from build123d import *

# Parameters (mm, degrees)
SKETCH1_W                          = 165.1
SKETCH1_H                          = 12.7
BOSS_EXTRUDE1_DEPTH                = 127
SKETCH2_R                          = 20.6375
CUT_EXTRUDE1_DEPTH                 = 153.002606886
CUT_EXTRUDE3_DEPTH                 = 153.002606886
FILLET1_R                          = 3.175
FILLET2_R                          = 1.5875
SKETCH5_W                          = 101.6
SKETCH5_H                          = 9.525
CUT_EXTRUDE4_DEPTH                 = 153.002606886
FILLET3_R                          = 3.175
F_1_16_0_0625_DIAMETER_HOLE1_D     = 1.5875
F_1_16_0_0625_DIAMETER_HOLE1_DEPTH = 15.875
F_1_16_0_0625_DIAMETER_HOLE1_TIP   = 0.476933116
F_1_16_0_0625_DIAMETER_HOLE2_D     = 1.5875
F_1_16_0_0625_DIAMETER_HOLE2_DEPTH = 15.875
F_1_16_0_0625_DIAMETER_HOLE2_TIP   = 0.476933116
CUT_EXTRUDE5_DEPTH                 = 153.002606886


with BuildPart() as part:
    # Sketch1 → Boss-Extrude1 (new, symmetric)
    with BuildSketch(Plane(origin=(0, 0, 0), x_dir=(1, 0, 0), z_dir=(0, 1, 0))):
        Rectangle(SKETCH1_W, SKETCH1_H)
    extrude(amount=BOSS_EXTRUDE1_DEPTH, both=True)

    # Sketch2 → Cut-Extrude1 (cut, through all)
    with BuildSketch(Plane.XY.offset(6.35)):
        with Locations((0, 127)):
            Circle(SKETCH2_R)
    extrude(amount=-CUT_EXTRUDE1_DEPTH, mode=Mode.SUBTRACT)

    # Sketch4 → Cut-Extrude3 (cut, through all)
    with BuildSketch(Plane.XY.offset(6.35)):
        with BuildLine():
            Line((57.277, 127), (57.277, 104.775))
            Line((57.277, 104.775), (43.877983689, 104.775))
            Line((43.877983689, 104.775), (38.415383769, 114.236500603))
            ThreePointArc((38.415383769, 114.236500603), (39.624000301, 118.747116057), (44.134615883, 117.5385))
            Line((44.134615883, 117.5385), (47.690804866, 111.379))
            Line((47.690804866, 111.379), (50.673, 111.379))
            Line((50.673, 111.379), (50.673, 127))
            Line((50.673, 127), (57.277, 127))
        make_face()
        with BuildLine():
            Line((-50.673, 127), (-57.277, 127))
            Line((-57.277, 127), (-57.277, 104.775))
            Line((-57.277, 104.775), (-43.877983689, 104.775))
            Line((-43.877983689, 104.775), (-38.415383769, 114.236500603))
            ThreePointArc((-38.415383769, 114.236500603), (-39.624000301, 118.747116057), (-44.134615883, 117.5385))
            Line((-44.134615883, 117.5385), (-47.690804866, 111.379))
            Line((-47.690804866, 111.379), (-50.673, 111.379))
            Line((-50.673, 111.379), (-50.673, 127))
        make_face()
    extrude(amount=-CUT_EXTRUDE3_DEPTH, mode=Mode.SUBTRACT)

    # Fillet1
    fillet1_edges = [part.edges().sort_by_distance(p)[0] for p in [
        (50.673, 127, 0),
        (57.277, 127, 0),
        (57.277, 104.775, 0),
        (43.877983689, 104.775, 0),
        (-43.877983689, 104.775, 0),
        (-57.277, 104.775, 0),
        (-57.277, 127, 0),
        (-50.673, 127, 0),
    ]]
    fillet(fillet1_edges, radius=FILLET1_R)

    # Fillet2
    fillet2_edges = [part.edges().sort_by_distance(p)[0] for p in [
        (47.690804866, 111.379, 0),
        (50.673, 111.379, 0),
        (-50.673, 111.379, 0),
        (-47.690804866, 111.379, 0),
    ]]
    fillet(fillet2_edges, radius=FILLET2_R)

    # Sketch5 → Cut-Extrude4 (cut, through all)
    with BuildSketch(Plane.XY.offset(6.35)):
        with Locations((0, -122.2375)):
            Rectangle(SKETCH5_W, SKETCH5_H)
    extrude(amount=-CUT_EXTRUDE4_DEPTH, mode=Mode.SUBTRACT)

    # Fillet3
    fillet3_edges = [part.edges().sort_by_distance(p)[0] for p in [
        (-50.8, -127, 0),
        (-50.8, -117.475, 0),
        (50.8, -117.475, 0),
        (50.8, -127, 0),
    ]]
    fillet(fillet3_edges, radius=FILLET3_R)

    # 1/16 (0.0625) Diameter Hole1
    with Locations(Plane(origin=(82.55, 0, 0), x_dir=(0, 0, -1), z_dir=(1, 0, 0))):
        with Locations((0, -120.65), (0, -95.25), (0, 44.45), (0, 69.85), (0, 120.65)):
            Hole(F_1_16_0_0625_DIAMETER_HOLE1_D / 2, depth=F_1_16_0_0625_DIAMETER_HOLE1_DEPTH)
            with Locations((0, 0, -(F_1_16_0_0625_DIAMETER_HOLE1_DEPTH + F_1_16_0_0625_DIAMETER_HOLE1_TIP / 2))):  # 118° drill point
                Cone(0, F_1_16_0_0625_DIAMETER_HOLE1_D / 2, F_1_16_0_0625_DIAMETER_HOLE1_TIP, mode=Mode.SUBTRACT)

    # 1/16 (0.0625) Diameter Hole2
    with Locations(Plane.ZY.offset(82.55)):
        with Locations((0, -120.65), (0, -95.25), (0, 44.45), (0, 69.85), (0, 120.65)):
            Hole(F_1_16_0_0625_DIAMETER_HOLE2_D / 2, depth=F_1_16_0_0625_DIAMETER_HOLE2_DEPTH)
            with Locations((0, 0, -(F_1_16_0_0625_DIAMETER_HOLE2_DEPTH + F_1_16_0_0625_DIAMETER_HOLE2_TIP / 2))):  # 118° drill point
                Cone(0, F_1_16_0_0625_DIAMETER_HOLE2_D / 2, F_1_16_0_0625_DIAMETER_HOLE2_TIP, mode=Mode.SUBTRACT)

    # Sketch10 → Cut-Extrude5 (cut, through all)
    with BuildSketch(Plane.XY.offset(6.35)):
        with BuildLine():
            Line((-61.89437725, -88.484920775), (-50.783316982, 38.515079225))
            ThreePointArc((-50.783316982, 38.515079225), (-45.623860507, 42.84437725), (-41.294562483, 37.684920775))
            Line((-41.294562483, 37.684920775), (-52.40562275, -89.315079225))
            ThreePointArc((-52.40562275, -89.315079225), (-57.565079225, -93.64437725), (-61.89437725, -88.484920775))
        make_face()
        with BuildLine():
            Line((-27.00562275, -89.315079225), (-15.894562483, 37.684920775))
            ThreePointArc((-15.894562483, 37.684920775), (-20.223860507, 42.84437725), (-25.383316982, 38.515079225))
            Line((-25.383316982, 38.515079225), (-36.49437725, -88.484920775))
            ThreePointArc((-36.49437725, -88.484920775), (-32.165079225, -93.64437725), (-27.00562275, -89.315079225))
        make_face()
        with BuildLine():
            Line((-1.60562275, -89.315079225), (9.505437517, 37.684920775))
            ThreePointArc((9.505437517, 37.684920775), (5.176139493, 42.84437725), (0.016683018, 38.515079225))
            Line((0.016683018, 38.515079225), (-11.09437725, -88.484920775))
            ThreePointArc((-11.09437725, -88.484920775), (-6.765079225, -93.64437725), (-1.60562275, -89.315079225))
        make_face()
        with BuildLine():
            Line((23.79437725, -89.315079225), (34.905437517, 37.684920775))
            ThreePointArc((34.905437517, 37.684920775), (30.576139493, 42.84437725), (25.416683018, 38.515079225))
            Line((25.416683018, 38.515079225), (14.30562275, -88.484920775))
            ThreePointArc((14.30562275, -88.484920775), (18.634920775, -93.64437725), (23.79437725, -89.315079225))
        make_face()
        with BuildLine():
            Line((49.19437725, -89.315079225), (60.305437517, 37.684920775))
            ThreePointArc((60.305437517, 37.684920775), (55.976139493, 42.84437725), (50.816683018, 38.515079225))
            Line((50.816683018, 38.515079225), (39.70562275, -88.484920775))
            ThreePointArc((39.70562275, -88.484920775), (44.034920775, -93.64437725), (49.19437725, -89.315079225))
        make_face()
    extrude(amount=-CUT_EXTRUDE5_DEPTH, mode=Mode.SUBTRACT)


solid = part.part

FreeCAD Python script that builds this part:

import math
import FreeCAD as App
import Part
import Sketcher
from FreeCAD import Vector
Q = App.Units.Quantity


def edges_at(feature, points):
    """Names of the edges that pass closest to the given points."""
    edges = feature.Shape.Edges
    near = lambda p: min(range(len(edges)), key=lambda i: edges[i].distToShape(Part.Vertex(*p))[0])
    return sorted({f"Edge{near(p) + 1}" for p in points})


def add_polygon(sketch, points):
    """Adds a closed chain of lines whose ends are joined by coincident constraints."""
    first, n = sketch.GeometryCount, len(points)
    for a, b in zip(points, points[1:] + points[:1]):
        sketch.addGeometry(Part.LineSegment(App.Vector(*a, 0), App.Vector(*b, 0)), False)
    for i in range(n):
        sketch.addConstraint(Sketcher.Constraint("Coincident", first + i, 2, first + (i + 1) % n, 1))

doc = App.newDocument("Part")
body = doc.addObject("PartDesign::Body", "Body")

# Sketch on XZ plane
sketch1 = doc.addObject("Sketcher::SketchObject", "Sketch")
body.addObject(sketch1)
sketch1.AttachmentSupport = (doc.XZ_Plane, [""])
sketch1.MapMode = "FlatFace"
add_polygon(sketch1, [(-83, -6), (-83, 6), (83, 6), (83, -6)])  # lines 0-3
sketch1.addConstraint(Sketcher.Constraint("Vertical", 0))
sketch1.addConstraint(Sketcher.Constraint("Horizontal", 1))
sketch1.addConstraint(Sketcher.Constraint("Vertical", 2))
sketch1.addConstraint(Sketcher.Constraint("Horizontal", 3))
sketch1.addConstraint(Sketcher.Constraint("Symmetric", 0, 2, 2, 2, -1, 1))
sketch1.addConstraint(Sketcher.Constraint("DistanceX", 1, 1, 1, 2, Q("6.5 in")))
sketch1.addConstraint(Sketcher.Constraint("DistanceY", 0, 1, 0, 2, Q("0.5 in")))
pad1 = doc.addObject("PartDesign::Pad", "Pad")
body.addObject(pad1)
pad1.Profile = sketch1
pad1.Length = Q("10 in")
pad1.Midplane = True

# Sketch on XY plane
sketch2 = doc.addObject("Sketcher::SketchObject", "Sketch001")
body.addObject(sketch2)
sketch2.AttachmentSupport = (doc.XY_Plane, [""])
sketch2.MapMode = "FlatFace"
sketch2.AttachmentOffset = App.Placement(Vector(0, 0, 0.25 * 25.4), App.Rotation())
sketch2.addGeometry(Part.Circle(Vector(0, 127, 0), Vector(0, 0, 1), 21), False)
sketch2.addConstraint(Sketcher.Constraint("PointOnObject", 0, 3, -2))
sketch2.addConstraint(Sketcher.Constraint("Diameter", 0, Q("1.625 in")))
sketch2.addConstraint(Sketcher.Constraint("DistanceY", -1, 1, 0, 3, Q("5 in")))
pocket1 = doc.addObject("PartDesign::Pocket", "Pocket")
body.addObject(pocket1)
pocket1.Profile = sketch2
pocket1.Type = "ThroughAll"

# Sketch on XY plane
sketch3 = doc.addObject("Sketcher::SketchObject", "Sketch002")
body.addObject(sketch3)
sketch3.AttachmentSupport = (doc.XY_Plane, [""])
sketch3.MapMode = "FlatFace"
sketch3.AttachmentOffset = App.Placement(Vector(0, 0, 0.25 * 25.4), App.Rotation())
sketch3.addGeometry(Part.LineSegment(Vector(57.3, 104.8, 0), Vector(57.3, 127, 0)), False)
sketch3.addGeometry(Part.LineSegment(Vector(57.3, 127, 0), Vector(50.7, 127, 0)), False)
sketch3.addGeometry(Part.LineSegment(Vector(50.7, 127, 0), Vector(50.7, 111.4, 0)), False)
sketch3.addGeometry(Part.LineSegment(Vector(50.7, 111.4, 0), Vector(47.7, 111.4, 0)), False)
sketch3.addGeometry(Part.LineSegment(Vector(47.7, 111.4, 0), Vector(44.1, 117.5, 0)), False)
sketch3.addGeometry(Part.ArcOfCircle(Part.Circle(Vector(41.3, 115.9, 0), Vector(0, 0, 1), 3.3), math.radians(30), math.radians(210)), False)
sketch3.addGeometry(Part.LineSegment(Vector(38.4, 114.2, 0), Vector(43.9, 104.8, 0)), False)
sketch3.addGeometry(Part.LineSegment(Vector(43.9, 104.8, 0), Vector(57.3, 104.8, 0)), False)
sketch3.addGeometry(Part.LineSegment(Vector(-50.7, 127, 0), Vector(-57.3, 127, 0)), False)
sketch3.addGeometry(Part.LineSegment(Vector(-57.3, 127, 0), Vector(-57.3, 104.8, 0)), False)
sketch3.addGeometry(Part.LineSegment(Vector(-57.3, 104.8, 0), Vector(-43.9, 104.8, 0)), False)
sketch3.addGeometry(Part.LineSegment(Vector(-43.9, 104.8, 0), Vector(-38.4, 114.2, 0)), False)
sketch3.addGeometry(Part.ArcOfCircle(Part.Circle(Vector(-41.3, 115.9, 0), Vector(0, 0, 1), 3.3), math.radians(-30), math.radians(150)), False)
sketch3.addGeometry(Part.LineSegment(Vector(-44.1, 117.5, 0), Vector(-47.7, 111.4, 0)), False)
sketch3.addGeometry(Part.LineSegment(Vector(-47.7, 111.4, 0), Vector(-50.7, 111.4, 0)), False)
sketch3.addGeometry(Part.LineSegment(Vector(-50.7, 111.4, 0), Vector(-50.7, 127, 0)), False)
sketch3.addConstraint(Sketcher.Constraint("Coincident", 0, 2, 1, 1))
sketch3.addConstraint(Sketcher.Constraint("Coincident", 1, 2, 2, 1))
sketch3.addConstraint(Sketcher.Constraint("Coincident", 2, 2, 3, 1))
sketch3.addConstraint(Sketcher.Constraint("Coincident", 3, 2, 4, 1))
sketch3.addConstraint(Sketcher.Constraint("Tangent", 4, 2, 5, 1))
sketch3.addConstraint(Sketcher.Constraint("Tangent", 5, 2, 6, 1))
sketch3.addConstraint(Sketcher.Constraint("Coincident", 6, 2, 7, 1))
sketch3.addConstraint(Sketcher.Constraint("Coincident", 7, 2, 0, 1))
sketch3.addConstraint(Sketcher.Constraint("Coincident", 8, 2, 9, 1))
sketch3.addConstraint(Sketcher.Constraint("Coincident", 9, 2, 10, 1))
sketch3.addConstraint(Sketcher.Constraint("Coincident", 10, 2, 11, 1))
sketch3.addConstraint(Sketcher.Constraint("Tangent", 11, 2, 12, 1))
sketch3.addConstraint(Sketcher.Constraint("Tangent", 12, 2, 13, 1))
sketch3.addConstraint(Sketcher.Constraint("Coincident", 13, 2, 14, 1))
sketch3.addConstraint(Sketcher.Constraint("Coincident", 14, 2, 15, 1))
sketch3.addConstraint(Sketcher.Constraint("Coincident", 15, 2, 8, 1))
sketch3.addConstraint(Sketcher.Constraint("Vertical", 0))
sketch3.addConstraint(Sketcher.Constraint("Horizontal", 1))
sketch3.addConstraint(Sketcher.Constraint("Vertical", 2))
sketch3.addConstraint(Sketcher.Constraint("Horizontal", 3))
sketch3.addConstraint(Sketcher.Constraint("Horizontal", 7))
sketch3.addConstraint(Sketcher.Constraint("Horizontal", 8))
sketch3.addConstraint(Sketcher.Constraint("Vertical", 9))
sketch3.addConstraint(Sketcher.Constraint("Horizontal", 10))
sketch3.addConstraint(Sketcher.Constraint("Horizontal", 14))
sketch3.addConstraint(Sketcher.Constraint("Vertical", 15))
sketch3.addConstraint(Sketcher.Constraint("Equal", 5, 12))
sketch3.addConstraint(Sketcher.Constraint("Symmetric", 5, 3, 12, 3, -2))
sketch3.addConstraint(Sketcher.Constraint("Symmetric", 0, 2, 8, 2, -2))
sketch3.addConstraint(Sketcher.Constraint("Symmetric", 6, 2, 10, 2, -2))
sketch3.addConstraint(Sketcher.Constraint("Symmetric", 3, 2, 13, 2, -2))
sketch3.addConstraint(Sketcher.Constraint("Parallel", 4, 6))
sketch3.addConstraint(Sketcher.Constraint("Equal", 1, 8))
sketch3.addConstraint(Sketcher.Constraint("Radius", 5, Q("0.13 in")))
sketch3.addConstraint(Sketcher.Constraint("DistanceY", -1, 1, 0, 2, Q("5 in")))
sketch3.addConstraint(Sketcher.Constraint("Angle", 4, Q("120 deg")))
sketch3.addConstraint(Sketcher.Constraint("DistanceX", 1, 2, 1, 1, Q("0.26 in")))
sketch3.addConstraint(Sketcher.Constraint("DistanceY", 0, 1, 0, 2, Q("0.875 in")))
sketch3.addConstraint(Sketcher.Constraint("DistanceY", 2, 2, 2, 1, Q("0.615 in")))
sketch3.addConstraint(Sketcher.Constraint("DistanceX", 12, 3, 5, 3, Q("3.25 in")))
sketch3.addConstraint(Sketcher.Constraint("DistanceX", 5, 3, 0, 2, Q("0.63 in")))
sketch3.addConstraint(Sketcher.Constraint("DistanceY", -1, 1, 5, 3, Q("4.5625 in")))
pocket2 = doc.addObject("PartDesign::Pocket", "Pocket001")
body.addObject(pocket2)
pocket2.Profile = sketch3
pocket2.Type = "ThroughAll"
doc.recompute()

fillet = doc.addObject("PartDesign::Fillet", "Fillet")
body.addObject(fillet)
fillet.Base = (pocket2, edges_at(pocket2, [
    (50.673, 127, 0),
    (57.277, 127, 0),
    (57.277, 104.775, 0),
    (43.878, 104.775, 0),
    (-43.878, 104.775, 0),
    (-57.277, 104.775, 0),
    (-57.277, 127, 0),
    (-50.673, 127, 0),
]))
fillet.Radius = Q("0.125 in")
doc.recompute()

fillet2 = doc.addObject("PartDesign::Fillet", "Fillet001")
body.addObject(fillet2)
fillet2.Base = (fillet, edges_at(fillet, [
    (47.691, 111.379, 0),
    (50.673, 111.379, 0),
    (-50.673, 111.379, 0),
    (-47.691, 111.379, 0),
]))
fillet2.Radius = Q("0.0625 in")

# Sketch on XY plane
sketch4 = doc.addObject("Sketcher::SketchObject", "Sketch003")
body.addObject(sketch4)
sketch4.AttachmentSupport = (doc.XY_Plane, [""])
sketch4.MapMode = "FlatFace"
sketch4.AttachmentOffset = App.Placement(Vector(0, 0, 0.25 * 25.4), App.Rotation())
add_polygon(sketch4, [(-51, -117), (-51, -127), (51, -127), (51, -117)])  # lines 0-3
sketch4.addConstraint(Sketcher.Constraint("Vertical", 0))
sketch4.addConstraint(Sketcher.Constraint("Horizontal", 1))
sketch4.addConstraint(Sketcher.Constraint("Vertical", 2))
sketch4.addConstraint(Sketcher.Constraint("Horizontal", 3))
sketch4.addConstraint(Sketcher.Constraint("DistanceX", 1, 1, 1, 2, Q("4 in")))
sketch4.addConstraint(Sketcher.Constraint("DistanceX", 0, 2, -1, 1, Q("2 in")))
sketch4.addConstraint(Sketcher.Constraint("DistanceY", 0, 2, -1, 1, Q("5 in")))
sketch4.addConstraint(Sketcher.Constraint("DistanceY", 0, 2, 0, 1, Q("0.375 in")))
pocket3 = doc.addObject("PartDesign::Pocket", "Pocket002")
body.addObject(pocket3)
pocket3.Profile = sketch4
pocket3.Type = "ThroughAll"
doc.recompute()

fillet3 = doc.addObject("PartDesign::Fillet", "Fillet002")
body.addObject(fillet3)
fillet3.Base = (pocket3, edges_at(pocket3, [
    (-50.8, -127, 0),
    (-50.8, -117.475, 0),
    (50.8, -117.475, 0),
    (50.8, -127, 0),
]))
fillet3.Radius = Q("0.125 in")

# Sketch on YZ plane
sketch5 = doc.addObject("Sketcher::SketchObject", "Sketch004")
body.addObject(sketch5)
sketch5.AttachmentSupport = (doc.YZ_Plane, [""])
sketch5.MapMode = "FlatFace"
sketch5.AttachmentOffset = App.Placement(Vector(0, 0, 3.25 * 25.4), App.Rotation())
sketch5.addGeometry(Part.Circle(Vector(-120.7, 0, 0), Vector(0, 0, 1), 0.8), False)
sketch5.addGeometry(Part.Circle(Vector(-95.2, 0, 0), Vector(0, 0, 1), 0.8), False)
sketch5.addGeometry(Part.Circle(Vector(44.5, 0, 0), Vector(0, 0, 1), 0.8), False)
sketch5.addGeometry(Part.Circle(Vector(69.8, 0, 0), Vector(0, 0, 1), 0.8), False)
sketch5.addGeometry(Part.Circle(Vector(120.7, 0, 0), Vector(0, 0, 1), 0.8), False)
sketch5.addConstraint(Sketcher.Constraint("Equal", 0, 1))
sketch5.addConstraint(Sketcher.Constraint("Equal", 1, 2))
sketch5.addConstraint(Sketcher.Constraint("Equal", 2, 3))
sketch5.addConstraint(Sketcher.Constraint("Equal", 3, 4))
sketch5.addConstraint(Sketcher.Constraint("Symmetric", 0, 3, 4, 3, -1, 1))
sketch5.addConstraint(Sketcher.Constraint("PointOnObject", 0, 3, -1))
sketch5.addConstraint(Sketcher.Constraint("PointOnObject", 1, 3, -1))
sketch5.addConstraint(Sketcher.Constraint("PointOnObject", 2, 3, -1))
sketch5.addConstraint(Sketcher.Constraint("PointOnObject", 3, 3, -1))
sketch5.addConstraint(Sketcher.Constraint("Diameter", 0, Q("0.0625 in")))
sketch5.addConstraint(Sketcher.Constraint("DistanceX", 0, 3, 1, 3, Q("1 in")))
sketch5.addConstraint(Sketcher.Constraint("DistanceX", 2, 3, 3, 3, Q("1 in")))
sketch5.addConstraint(Sketcher.Constraint("DistanceX", 3, 3, 4, 3, Q("2 in")))
sketch5.addConstraint(Sketcher.Constraint("DistanceX", 1, 3, 2, 3, Q("5.5 in")))
doc.recompute()
hole = doc.addObject("PartDesign::Hole", "Hole")
body.addObject(hole)
hole.Profile = sketch5
hole.ThreadType = "None"
hole.Diameter = Q("0.0625 in")
hole.DepthType = "Dimension"
hole.Depth = Q("0.625 in")
hole.DrillPoint = "Angled"
hole.DrillPointAngle = 118

# Sketch on YZ plane
sketch6 = doc.addObject("Sketcher::SketchObject", "Sketch005")
body.addObject(sketch6)
sketch6.AttachmentSupport = (doc.YZ_Plane, [""])
sketch6.MapMode = "FlatFace"
sketch6.AttachmentOffset = App.Placement(Vector(0, 0, -3.25 * 25.4), App.Rotation())
sketch6.addGeometry(Part.Circle(Vector(-120.7, 0, 0), Vector(0, 0, 1), 0.8), False)
sketch6.addGeometry(Part.Circle(Vector(-95.2, 0, 0), Vector(0, 0, 1), 0.8), False)
sketch6.addGeometry(Part.Circle(Vector(44.5, 0, 0), Vector(0, 0, 1), 0.8), False)
sketch6.addGeometry(Part.Circle(Vector(69.8, 0, 0), Vector(0, 0, 1), 0.8), False)
sketch6.addGeometry(Part.Circle(Vector(120.7, 0, 0), Vector(0, 0, 1), 0.8), False)
sketch6.addConstraint(Sketcher.Constraint("Equal", 0, 1))
sketch6.addConstraint(Sketcher.Constraint("Equal", 1, 2))
sketch6.addConstraint(Sketcher.Constraint("Equal", 2, 3))
sketch6.addConstraint(Sketcher.Constraint("Equal", 3, 4))
sketch6.addConstraint(Sketcher.Constraint("Symmetric", 0, 3, 4, 3, -1, 1))
sketch6.addConstraint(Sketcher.Constraint("PointOnObject", 0, 3, -1))
sketch6.addConstraint(Sketcher.Constraint("PointOnObject", 1, 3, -1))
sketch6.addConstraint(Sketcher.Constraint("PointOnObject", 2, 3, -1))
sketch6.addConstraint(Sketcher.Constraint("PointOnObject", 3, 3, -1))
sketch6.addConstraint(Sketcher.Constraint("Diameter", 0, Q("0.0625 in")))
sketch6.addConstraint(Sketcher.Constraint("DistanceX", 0, 3, 1, 3, Q("1 in")))
sketch6.addConstraint(Sketcher.Constraint("DistanceX", 2, 3, 3, 3, Q("1 in")))
sketch6.addConstraint(Sketcher.Constraint("DistanceX", 3, 3, 4, 3, Q("2 in")))
sketch6.addConstraint(Sketcher.Constraint("DistanceX", 1, 3, 2, 3, Q("5.5 in")))
doc.recompute()
hole2 = doc.addObject("PartDesign::Hole", "Hole001")
body.addObject(hole2)
hole2.Profile = sketch6
hole2.ThreadType = "None"
hole2.Diameter = Q("0.0625 in")
hole2.DepthType = "Dimension"
hole2.Depth = Q("0.625 in")
hole2.DrillPoint = "Angled"
hole2.DrillPointAngle = 118
hole2.Reversed = True

# Sketch on XY plane
sketch7 = doc.addObject("Sketcher::SketchObject", "Sketch006")
body.addObject(sketch7)
sketch7.AttachmentSupport = (doc.XY_Plane, [""])
sketch7.MapMode = "FlatFace"
sketch7.AttachmentOffset = App.Placement(Vector(0, 0, 0.25 * 25.4), App.Rotation())
sketch7.addGeometry(Part.LineSegment(Vector(-50.8, 38.5, 0), Vector(-61.9, -88.5, 0)), False)
sketch7.addGeometry(Part.ArcOfCircle(Part.Circle(Vector(-57.1, -88.9, 0), Vector(0, 0, 1), 4.8), math.radians(175), math.radians(355)), False)
sketch7.addGeometry(Part.LineSegment(Vector(-52.4, -89.3, 0), Vector(-41.3, 37.7, 0)), False)
sketch7.addGeometry(Part.ArcOfCircle(Part.Circle(Vector(-46, 38.1, 0), Vector(0, 0, 1), 4.8), math.radians(-5), math.radians(175)), False)
sketch7.addGeometry(Part.LineSegment(Vector(-27, -89.3, 0), Vector(-15.9, 37.7, 0)), False)
sketch7.addGeometry(Part.ArcOfCircle(Part.Circle(Vector(-20.6, 38.1, 0), Vector(0, 0, 1), 4.8), math.radians(-5), math.radians(175)), False)
sketch7.addGeometry(Part.LineSegment(Vector(-25.4, 38.5, 0), Vector(-36.5, -88.5, 0)), False)
sketch7.addGeometry(Part.ArcOfCircle(Part.Circle(Vector(-31.8, -88.9, 0), Vector(0, 0, 1), 4.8), math.radians(175), math.radians(355)), False)
sketch7.addGeometry(Part.LineSegment(Vector(-1.6, -89.3, 0), Vector(9.5, 37.7, 0)), False)
sketch7.addGeometry(Part.ArcOfCircle(Part.Circle(Vector(4.8, 38.1, 0), Vector(0, 0, 1), 4.8), math.radians(-5), math.radians(175)), False)
sketch7.addGeometry(Part.LineSegment(Vector(0, 38.5, 0), Vector(-11.1, -88.5, 0)), False)
sketch7.addGeometry(Part.ArcOfCircle(Part.Circle(Vector(-6.3, -88.9, 0), Vector(0, 0, 1), 4.8), math.radians(175), math.radians(355)), False)
sketch7.addGeometry(Part.LineSegment(Vector(23.8, -89.3, 0), Vector(34.9, 37.7, 0)), False)
sketch7.addGeometry(Part.ArcOfCircle(Part.Circle(Vector(30.2, 38.1, 0), Vector(0, 0, 1), 4.8), math.radians(-5), math.radians(175)), False)
sketch7.addGeometry(Part.LineSegment(Vector(25.4, 38.5, 0), Vector(14.3, -88.5, 0)), False)
sketch7.addGeometry(Part.ArcOfCircle(Part.Circle(Vector(19.1, -88.9, 0), Vector(0, 0, 1), 4.8), math.radians(175), math.radians(355)), False)
sketch7.addGeometry(Part.LineSegment(Vector(49.2, -89.3, 0), Vector(60.3, 37.7, 0)), False)
sketch7.addGeometry(Part.ArcOfCircle(Part.Circle(Vector(55.6, 38.1, 0), Vector(0, 0, 1), 4.8), math.radians(-5), math.radians(175)), False)
sketch7.addGeometry(Part.LineSegment(Vector(50.8, 38.5, 0), Vector(39.7, -88.5, 0)), False)
sketch7.addGeometry(Part.ArcOfCircle(Part.Circle(Vector(44.5, -88.9, 0), Vector(0, 0, 1), 4.8), math.radians(175), math.radians(355)), False)
sketch7.addConstraint(Sketcher.Constraint("Tangent", 0, 2, 1, 1))
sketch7.addConstraint(Sketcher.Constraint("Tangent", 1, 2, 2, 1))
sketch7.addConstraint(Sketcher.Constraint("Tangent", 2, 2, 3, 1))
sketch7.addConstraint(Sketcher.Constraint("Tangent", 3, 2, 0, 1))
sketch7.addConstraint(Sketcher.Constraint("Tangent", 4, 2, 5, 1))
sketch7.addConstraint(Sketcher.Constraint("Tangent", 5, 2, 6, 1))
sketch7.addConstraint(Sketcher.Constraint("Tangent", 6, 2, 7, 1))
sketch7.addConstraint(Sketcher.Constraint("Tangent", 7, 2, 4, 1))
sketch7.addConstraint(Sketcher.Constraint("Tangent", 8, 2, 9, 1))
sketch7.addConstraint(Sketcher.Constraint("Tangent", 9, 2, 10, 1))
sketch7.addConstraint(Sketcher.Constraint("Tangent", 10, 2, 11, 1))
sketch7.addConstraint(Sketcher.Constraint("Tangent", 11, 2, 8, 1))
sketch7.addConstraint(Sketcher.Constraint("Tangent", 12, 2, 13, 1))
sketch7.addConstraint(Sketcher.Constraint("Tangent", 13, 2, 14, 1))
sketch7.addConstraint(Sketcher.Constraint("Tangent", 14, 2, 15, 1))
sketch7.addConstraint(Sketcher.Constraint("Tangent", 15, 2, 12, 1))
sketch7.addConstraint(Sketcher.Constraint("Tangent", 16, 2, 17, 1))
sketch7.addConstraint(Sketcher.Constraint("Tangent", 17, 2, 18, 1))
sketch7.addConstraint(Sketcher.Constraint("Tangent", 18, 2, 19, 1))
sketch7.addConstraint(Sketcher.Constraint("Tangent", 19, 2, 16, 1))
sketch7.addConstraint(Sketcher.Constraint("Equal", 1, 3))
sketch7.addConstraint(Sketcher.Constraint("Equal", 3, 5))
sketch7.addConstraint(Sketcher.Constraint("Equal", 5, 7))
sketch7.addConstraint(Sketcher.Constraint("Equal", 7, 9))
sketch7.addConstraint(Sketcher.Constraint("Equal", 9, 11))
sketch7.addConstraint(Sketcher.Constraint("Equal", 11, 13))
sketch7.addConstraint(Sketcher.Constraint("Equal", 13, 15))
sketch7.addConstraint(Sketcher.Constraint("Equal", 15, 17))
sketch7.addConstraint(Sketcher.Constraint("Equal", 17, 19))
sketch7.addConstraint(Sketcher.Constraint("Parallel", 2, 4))
sketch7.addConstraint(Sketcher.Constraint("Parallel", 6, 8))
sketch7.addConstraint(Sketcher.Constraint("Parallel", 10, 12))
sketch7.addConstraint(Sketcher.Constraint("Parallel", 14, 16))
sketch7.addConstraint(Sketcher.Constraint("Horizontal", 3, 3, 5, 3))
sketch7.addConstraint(Sketcher.Constraint("Horizontal", 1, 3, 7, 3))
sketch7.addConstraint(Sketcher.Constraint("Horizontal", 5, 3, 9, 3))
sketch7.addConstraint(Sketcher.Constraint("Horizontal", 7, 3, 11, 3))
sketch7.addConstraint(Sketcher.Constraint("Horizontal", 9, 3, 13, 3))
sketch7.addConstraint(Sketcher.Constraint("Horizontal", 11, 3, 15, 3))
sketch7.addConstraint(Sketcher.Constraint("Horizontal", 13, 3, 17, 3))
sketch7.addConstraint(Sketcher.Constraint("Horizontal", 15, 3, 19, 3))
sketch7.addConstraint(Sketcher.Constraint("Angle", 0, Q("-95 deg")))
sketch7.addConstraint(Sketcher.Constraint("Radius", 1, Q("0.1875 in")))
sketch7.addConstraint(Sketcher.Constraint("DistanceY", 1, 3, 3, 3, Q("5 in")))
sketch7.addConstraint(Sketcher.Constraint("DistanceX", 3, 3, 5, 3, Q("1 in")))
sketch7.addConstraint(Sketcher.Constraint("DistanceX", 5, 3, 9, 3, Q("1 in")))
sketch7.addConstraint(Sketcher.Constraint("DistanceX", 9, 3, 13, 3, Q("1 in")))
sketch7.addConstraint(Sketcher.Constraint("DistanceX", 13, 3, 17, 3, Q("1 in")))
sketch7.addConstraint(Sketcher.Constraint("DistanceY", 1, 3, -1, 1, Q("3.5 in")))
sketch7.addConstraint(Sketcher.Constraint("DistanceX", 1, 3, -1, 1, Q("2.25 in")))
pocket4 = doc.addObject("PartDesign::Pocket", "Pocket003")
body.addObject(pocket4)
pocket4.Profile = sketch7
pocket4.Type = "ThroughAll"

doc.recompute()
